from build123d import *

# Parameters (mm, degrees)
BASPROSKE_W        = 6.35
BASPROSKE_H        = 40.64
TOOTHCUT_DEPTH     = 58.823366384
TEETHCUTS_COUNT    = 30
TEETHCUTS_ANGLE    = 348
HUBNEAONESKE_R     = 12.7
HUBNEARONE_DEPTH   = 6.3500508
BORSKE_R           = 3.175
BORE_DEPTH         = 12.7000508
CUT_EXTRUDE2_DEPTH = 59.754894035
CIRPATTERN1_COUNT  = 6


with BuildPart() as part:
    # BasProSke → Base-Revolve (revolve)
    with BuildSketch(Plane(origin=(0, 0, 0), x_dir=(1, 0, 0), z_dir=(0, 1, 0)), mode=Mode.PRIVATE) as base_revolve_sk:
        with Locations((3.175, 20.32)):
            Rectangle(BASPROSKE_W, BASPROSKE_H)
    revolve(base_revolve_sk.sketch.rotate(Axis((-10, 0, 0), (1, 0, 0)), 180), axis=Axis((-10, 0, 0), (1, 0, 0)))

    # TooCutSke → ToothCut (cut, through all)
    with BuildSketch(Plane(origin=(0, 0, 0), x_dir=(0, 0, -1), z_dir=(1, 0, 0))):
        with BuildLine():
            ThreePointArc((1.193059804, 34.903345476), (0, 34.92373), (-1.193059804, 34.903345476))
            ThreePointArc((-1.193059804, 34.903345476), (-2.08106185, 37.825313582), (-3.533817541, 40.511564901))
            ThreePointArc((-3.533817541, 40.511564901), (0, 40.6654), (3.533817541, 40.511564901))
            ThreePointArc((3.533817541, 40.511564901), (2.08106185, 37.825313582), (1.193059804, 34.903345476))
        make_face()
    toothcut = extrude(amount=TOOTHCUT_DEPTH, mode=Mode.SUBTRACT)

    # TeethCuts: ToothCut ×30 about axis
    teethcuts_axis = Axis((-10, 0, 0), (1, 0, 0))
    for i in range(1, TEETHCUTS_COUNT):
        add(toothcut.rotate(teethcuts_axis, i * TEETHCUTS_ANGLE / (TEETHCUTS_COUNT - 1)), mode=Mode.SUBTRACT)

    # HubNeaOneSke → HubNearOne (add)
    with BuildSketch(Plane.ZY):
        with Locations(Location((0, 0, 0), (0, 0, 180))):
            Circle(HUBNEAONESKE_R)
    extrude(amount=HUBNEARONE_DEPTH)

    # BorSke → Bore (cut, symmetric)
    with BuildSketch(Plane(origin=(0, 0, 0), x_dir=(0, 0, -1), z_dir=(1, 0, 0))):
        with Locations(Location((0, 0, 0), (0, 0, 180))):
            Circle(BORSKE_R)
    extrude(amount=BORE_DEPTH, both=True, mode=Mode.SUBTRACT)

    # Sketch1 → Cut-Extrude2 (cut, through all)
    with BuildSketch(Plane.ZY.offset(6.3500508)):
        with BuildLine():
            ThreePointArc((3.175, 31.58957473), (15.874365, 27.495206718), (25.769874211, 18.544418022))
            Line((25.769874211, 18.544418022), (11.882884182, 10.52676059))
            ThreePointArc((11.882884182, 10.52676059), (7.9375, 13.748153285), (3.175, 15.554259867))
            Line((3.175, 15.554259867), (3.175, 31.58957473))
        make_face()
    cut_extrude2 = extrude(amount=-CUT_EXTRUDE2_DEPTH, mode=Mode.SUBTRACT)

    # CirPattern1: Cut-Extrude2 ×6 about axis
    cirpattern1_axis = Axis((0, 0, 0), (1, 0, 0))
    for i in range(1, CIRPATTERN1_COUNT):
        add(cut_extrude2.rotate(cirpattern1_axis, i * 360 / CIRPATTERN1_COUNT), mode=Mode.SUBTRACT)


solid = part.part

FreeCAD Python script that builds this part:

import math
import FreeCAD as App
import Part
import Sketcher

V = App.Vector
Q = App.Units.Quantity

doc = App.newDocument("Part")
body = doc.addObject("PartDesign::Body", "Body")

# Sketch on XZ plane
sketch1 = body.newObject("Sketcher::SketchObject", "Sketch")
sketch1.AttachmentSupport = (doc.getObject("XZ_Plane"), [""])
sketch1.MapMode = "FlatFace"
sketch1.addGeometry([
    Part.LineSegment(V(0, -41, 0), V(0, 0, 0)),
    Part.LineSegment(V(0, 0, 0), V(6, 0, 0)),
    Part.LineSegment(V(6, 0, 0), V(6, -41, 0)),
    Part.LineSegment(V(6, -41, 0), V(0, -41, 0)),
], False)
sketch1.addConstraint([
    Sketcher.Constraint("Coincident", 0, 2, 1, 1),
    Sketcher.Constraint("Coincident", 1, 2, 2, 1),
    Sketcher.Constraint("Coincident", 2, 2, 3, 1),
    Sketcher.Constraint("Coincident", 3, 2, 0, 1),
    Sketcher.Constraint("Vertical", 0),
    Sketcher.Constraint("Horizontal", 1),
    Sketcher.Constraint("Vertical", 2),
    Sketcher.Constraint("Horizontal", 3),
    Sketcher.Constraint("Coincident", 0, 2, -1, 1),
    Sketcher.Constraint("DistanceY", 0, 1, 0, 2, Q("1.6 in")),
    Sketcher.Constraint("DistanceX", 1, 1, 1, 2, Q("0.25 in")),
])
revolution = body.newObject("PartDesign::Revolution", "Revolution")
revolution.Profile = sketch1
revolution.ReferenceAxis = (sketch1, ["H_Axis"])
revolution.Angle = 360

# Sketch on YZ plane
sketch2 = body.newObject("Sketcher::SketchObject", "Sketch001")
sketch2.AttachmentSupport = (doc.getObject("YZ_Plane"), [""])
sketch2.MapMode = "FlatFace"
sketch2.addGeometry([
    Part.ArcOfCircle(Part.Circle(V(0, 0, 0), V(0, 0, 1), 34.9), math.radians(-1.96), math.radians(1.96)),
    Part.ArcOfCircle(Part.Circle(V(32, -16.1, 0), V(0, 0, 1), 15.2), math.radians(56), math.radians(79)),
    Part.ArcOfCircle(Part.Circle(V(0, 0, 0), V(0, 0, 1), 40.7), math.radians(-4.99), math.radians(4.99)),
    Part.ArcOfCircle(Part.Circle(V(32, 16.1, 0), V(0, 0, 1), 15.2), math.radians(-79), math.radians(-56)),
], False)
sketch2.addConstraint([
    Sketcher.Constraint("Coincident", 0, 1, 1, 2),
    Sketcher.Constraint("Coincident", 1, 1, 2, 1),
    Sketcher.Constraint("Coincident", 2, 2, 3, 2),
    Sketcher.Constraint("Coincident", 3, 1, 0, 2),
    Sketcher.Constraint("Coincident", 0, 3, -1, 1),
    Sketcher.Constraint("Coincident", 2, 3, -1, 1),
    Sketcher.Constraint("Equal", 1, 3),
    Sketcher.Constraint("Symmetric", 1, 3, 3, 3, -1),
    Sketcher.Constraint("Radius", 1, Q("0.6 in")),
    Sketcher.Constraint("Radius", 2, Q("1.601 in")),
    Sketcher.Constraint("Radius", 0, Q("34.92373 mm")),
    Sketcher.Constraint("DistanceX", -1, 1, 1, 3, Q("31.95523 mm")),
    Sketcher.Constraint("DistanceY", 1, 3, -1, 1, Q("16.145191 mm")),
])
pocket1 = body.newObject("PartDesign::Pocket", "Pocket")
pocket1.Profile = sketch2
pocket1.Type = "ThroughAll"
pocket1.Reversed = True
doc.recompute()

polarpattern = body.newObject("PartDesign::PolarPattern", "PolarPattern")
polarpattern.Originals = [pocket1]
polarpattern.Axis = (doc.getObject("X_Axis"), [""])
polarpattern.Angle = 360
polarpattern.Occurrences = 30
body.Tip = polarpattern

# Sketch on YZ plane
sketch3 = body.newObject("Sketcher::SketchObject", "Sketch002")
sketch3.AttachmentSupport = (doc.getObject("YZ_Plane"), [""])
sketch3.MapMode = "FlatFace"
sketch3.addGeometry(Part.Circle(V(0, 0, 0), V(0, 0, 1), 13), False)
sketch3.addConstraint([
    Sketcher.Constraint("Coincident", 0, 3, -1, 1),
    Sketcher.Constraint("Diameter", 0, Q("1 in")),
])
pad1 = body.newObject("PartDesign::Pad", "Pad")
pad1.Profile = sketch3
pad1.Length = 6.350051
pad1.Reversed = True

# Sketch on YZ plane
sketch4 = body.newObject("Sketcher::SketchObject", "Sketch003")
sketch4.AttachmentSupport = (doc.getObject("YZ_Plane"), [""])
sketch4.MapMode = "FlatFace"
sketch4.addGeometry(Part.Circle(V(0, 0, 0), V(0, 0, 1), 3.2), False)
sketch4.addConstraint([
    Sketcher.Constraint("Coincident", 0, 3, -1, 1),
    Sketcher.Constraint("Diameter", 0, Q("0.25 in")),
])
pocket2 = body.newObject("PartDesign::Pocket", "Pocket001")
pocket2.Profile = sketch4
pocket2.Length = 25.400102
pocket2.Midplane = True

# Sketch on YZ plane
sketch5 = body.newObject("Sketcher::SketchObject", "Sketch004")
sketch5.AttachmentSupport = (doc.getObject("YZ_Plane"), [""])
sketch5.MapMode = "FlatFace"
sketch5.AttachmentOffset = App.Placement(V(0, 0, -6.350051), App.Rotation())
sketch5.addGeometry([
    Part.ArcOfCircle(Part.Circle(V(0, 0, 0), V(0, 0, 1), 32), math.radians(6), math.radians(54)),
    Part.LineSegment(V(32, 3, 0), V(16, 3, 0)),
    Part.ArcOfCircle(Part.Circle(V(0, 0, 0), V(0, 0, 1), 16), math.radians(12), math.radians(48)),
    Part.LineSegment(V(11, 12, 0), V(19, 26, 0)),
], False)
sketch5.addConstraint([
    Sketcher.Constraint("Coincident", 0, 1, 1, 1),
    Sketcher.Constraint("Coincident", 1, 2, 2, 1),
    Sketcher.Constraint("Coincident", 2, 2, 3, 1),
    Sketcher.Constraint("Coincident", 3, 2, 0, 2),
    Sketcher.Constraint("Horizontal", 1),
    Sketcher.Constraint("Coincident", 0, 3, -1, 1),
    Sketcher.Constraint("Coincident", 2, 3, -1, 1),
    Sketcher.Constraint("Angle", 3, Q("60 deg")),
    Sketcher.Constraint("Radius", 2, Q("0.625 in")),
    Sketcher.Constraint("DistanceY", -1, 1, 0, 1, Q("0.125 in")),
    Sketcher.Constraint("Radius", 0, Q("31.74873 mm")),
    Sketcher.Constraint("DistanceX", 2, 2, 1, 2, Q("5.027499 mm")),
])
pocket3 = body.newObject("PartDesign::Pocket", "Pocket002")
pocket3.Profile = sketch5
pocket3.Type = "ThroughAll"
pocket3.Reversed = True
doc.recompute()

polarpattern2 = body.newObject("PartDesign::PolarPattern", "PolarPattern001")
polarpattern2.Originals = [pocket3]
polarpattern2.Axis = (doc.getObject("X_Axis"), [""])
polarpattern2.Angle = 360
polarpattern2.Occurrences = 6
body.Tip = polarpattern2

doc.recompute()
